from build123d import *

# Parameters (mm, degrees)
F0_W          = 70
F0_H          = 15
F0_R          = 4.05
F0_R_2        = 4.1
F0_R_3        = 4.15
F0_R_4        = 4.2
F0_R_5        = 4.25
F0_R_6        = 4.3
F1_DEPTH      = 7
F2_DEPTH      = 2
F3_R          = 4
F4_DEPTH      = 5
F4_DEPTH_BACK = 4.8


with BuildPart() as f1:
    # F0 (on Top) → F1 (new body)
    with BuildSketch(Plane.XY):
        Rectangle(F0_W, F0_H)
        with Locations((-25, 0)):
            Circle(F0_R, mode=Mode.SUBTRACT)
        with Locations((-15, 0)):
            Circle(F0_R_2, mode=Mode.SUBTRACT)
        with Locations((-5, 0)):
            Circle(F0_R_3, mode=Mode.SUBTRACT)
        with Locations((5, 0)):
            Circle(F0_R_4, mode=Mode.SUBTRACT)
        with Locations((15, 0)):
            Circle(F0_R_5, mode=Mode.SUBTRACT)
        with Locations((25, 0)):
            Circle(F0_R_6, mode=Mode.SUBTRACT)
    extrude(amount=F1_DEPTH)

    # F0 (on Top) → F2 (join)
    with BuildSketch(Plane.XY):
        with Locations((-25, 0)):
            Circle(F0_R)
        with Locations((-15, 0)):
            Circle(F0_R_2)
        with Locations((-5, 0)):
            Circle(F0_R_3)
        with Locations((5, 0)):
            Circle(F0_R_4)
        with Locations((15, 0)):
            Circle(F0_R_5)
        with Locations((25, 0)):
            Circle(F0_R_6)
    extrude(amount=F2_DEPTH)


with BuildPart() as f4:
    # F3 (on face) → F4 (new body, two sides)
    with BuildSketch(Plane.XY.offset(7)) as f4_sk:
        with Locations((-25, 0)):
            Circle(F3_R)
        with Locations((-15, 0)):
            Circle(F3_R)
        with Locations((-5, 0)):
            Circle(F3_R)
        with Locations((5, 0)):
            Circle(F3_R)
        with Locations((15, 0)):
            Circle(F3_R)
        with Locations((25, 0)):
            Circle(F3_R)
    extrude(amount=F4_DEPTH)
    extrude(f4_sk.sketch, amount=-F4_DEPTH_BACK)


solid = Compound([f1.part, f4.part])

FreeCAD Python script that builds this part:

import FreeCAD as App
import Part
import Sketcher

V = App.Vector

doc = App.newDocument("Part")
body = doc.addObject("PartDesign::Body", "Body")

# Sketch on XY plane
sketch1 = body.newObject("Sketcher::SketchObject", "Sketch")
sketch1.AttachmentSupport = (doc.getObject("XY_Plane"), [""])
sketch1.MapMode = "FlatFace"
sketch1.addGeometry([
    Part.LineSegment(V(-35, 7.5, 0), V(-35, -7.5, 0)),  # 0
    Part.LineSegment(V(-35, -7.5, 0), V(35, -7.5, 0)),  # 1
    Part.LineSegment(V(35, -7.5, 0), V(35, 7.5, 0)),  # 2
    Part.LineSegment(V(35, 7.5, 0), V(-35, 7.5, 0)),  # 3
    Part.Circle(V(-25, 0, 0), V(0, 0, 1), 4),  # 4
    Part.Circle(V(-15, 0, 0), V(0, 0, 1), 4.1),  # 5
    Part.Circle(V(-5, 0, 0), V(0, 0, 1), 4.2),  # 6
    Part.Circle(V(5, 0, 0), V(0, 0, 1), 4.2),  # 7
    Part.Circle(V(15, 0, 0), V(0, 0, 1), 4.2),  # 8
    Part.Circle(V(25, 0, 0), V(0, 0, 1), 4.3),  # 9
], False)
sketch1.addConstraint([
    Sketcher.Constraint("Coincident", 0, 2, 1, 1),
    Sketcher.Constraint("Coincident", 1, 2, 2, 1),
    Sketcher.Constraint("Coincident", 2, 2, 3, 1),
    Sketcher.Constraint("Coincident", 3, 2, 0, 1),
    Sketcher.Constraint("Vertical", 0),
    Sketcher.Constraint("Horizontal", 1),
    Sketcher.Constraint("Vertical", 2),
    Sketcher.Constraint("Horizontal", 3),
    Sketcher.Constraint("Symmetric", 6, 3, 7, 3, -1, 1),
    Sketcher.Constraint("Symmetric", 5, 3, 8, 3, -1, 1),
    Sketcher.Constraint("Symmetric", 4, 3, 9, 3, -1, 1),
    Sketcher.Constraint("Symmetric", 0, 2, 2, 2, -1, 1),
    Sketcher.Constraint("PointOnObject", 4, 3, -1),
    Sketcher.Constraint("PointOnObject", 5, 3, -1),
    Sketcher.Constraint("PointOnObject", 6, 3, -1),
    Sketcher.Constraint("Diameter", 4, 8.1),
    Sketcher.Constraint("Diameter", 5, 8.2),
    Sketcher.Constraint("Diameter", 6, 8.3),
    Sketcher.Constraint("Diameter", 7, 8.4),
    Sketcher.Constraint("Diameter", 8, 8.5),
    Sketcher.Constraint("Diameter", 9, 8.6),
    Sketcher.Constraint("DistanceX", 1, 1, 1, 2, 70.0),
    Sketcher.Constraint("DistanceY", 0, 2, 0, 1, 15.0),
    Sketcher.Constraint("DistanceX", 4, 3, -1, 1, 25.0),
    Sketcher.Constraint("DistanceX", 5, 3, -1, 1, 15.0),
    Sketcher.Constraint("DistanceX", 6, 3, -1, 1, 5.0),
])
pad1 = body.newObject("PartDesign::Pad", "Pad")
pad1.Profile = sketch1
pad1.Length = 7

# Sketch on XY plane
sketch2 = body.newObject("Sketcher::SketchObject", "Sketch001")
sketch2.AttachmentSupport = (doc.getObject("XY_Plane"), [""])
sketch2.MapMode = "FlatFace"
sketch2.addGeometry([
    Part.Circle(V(-25, 0, 0), V(0, 0, 1), 4),  # 0
    Part.Circle(V(-15, 0, 0), V(0, 0, 1), 4.1),  # 1
    Part.Circle(V(-5, 0, 0), V(0, 0, 1), 4.2),  # 2
    Part.Circle(V(5, 0, 0), V(0, 0, 1), 4.2),  # 3
    Part.Circle(V(15, 0, 0), V(0, 0, 1), 4.2),  # 4
    Part.Circle(V(25, 0, 0), V(0, 0, 1), 4.3),  # 5
], False)
sketch2.addConstraint([
    Sketcher.Constraint("Symmetric", 2, 3, 3, 3, -1, 1),
    Sketcher.Constraint("Symmetric", 1, 3, 4, 3, -1, 1),
    Sketcher.Constraint("Symmetric", 0, 3, 5, 3, -1, 1),
    Sketcher.Constraint("PointOnObject", 0, 3, -1),
    Sketcher.Constraint("PointOnObject", 1, 3, -1),
    Sketcher.Constraint("PointOnObject", 2, 3, -1),
    Sketcher.Constraint("Diameter", 0, 8.1),
    Sketcher.Constraint("Diameter", 1, 8.2),
    Sketcher.Constraint("Diameter", 2, 8.3),
    Sketcher.Constraint("Diameter", 3, 8.4),
    Sketcher.Constraint("Diameter", 4, 8.5),
    Sketcher.Constraint("Diameter", 5, 8.6),
    Sketcher.Constraint("DistanceX", 0, 3, -1, 1, 25.0),
    Sketcher.Constraint("DistanceX", 1, 3, -1, 1, 15.0),
    Sketcher.Constraint("DistanceX", 2, 3, -1, 1, 5.0),
])
pad2 = body.newObject("PartDesign::Pad", "Pad001")
pad2.Profile = sketch2
pad2.Length = 2
body2 = doc.addObject("PartDesign::Body", "Body001")
body2.AllowCompound = True

# Sketch on XY plane
sketch3 = body2.newObject("Sketcher::SketchObject", "Sketch002")
sketch3.AttachmentSupport = (doc.getObject("XY_Plane001"), [""])
sketch3.MapMode = "FlatFace"
sketch3.AttachmentOffset = App.Placement(V(0, 0, 7), App.Rotation())
sketch3.addGeometry([
    Part.Circle(V(-25, 0, 0), V(0, 0, 1), 4),  # 0
    Part.Circle(V(-15, 0, 0), V(0, 0, 1), 4),  # 1
    Part.Circle(V(-5, 0, 0), V(0, 0, 1), 4),  # 2
    Part.Circle(V(5, 0, 0), V(0, 0, 1), 4),  # 3
    Part.Circle(V(15, 0, 0), V(0, 0, 1), 4),  # 4
    Part.Circle(V(25, 0, 0), V(0, 0, 1), 4),  # 5
], False)
sketch3.addConstraint([
    Sketcher.Constraint("Equal", 0, 1),
    Sketcher.Constraint("Equal", 1, 2),
    Sketcher.Constraint("Equal", 2, 3),
    Sketcher.Constraint("Equal", 3, 4),
    Sketcher.Constraint("Equal", 4, 5),
    Sketcher.Constraint("Symmetric", 2, 3, 3, 3, -1, 1),
    Sketcher.Constraint("Symmetric", 1, 3, 4, 3, -1, 1),
    Sketcher.Constraint("Symmetric", 0, 3, 5, 3, -1, 1),
    Sketcher.Constraint("PointOnObject", 0, 3, -1),
    Sketcher.Constraint("PointOnObject", 1, 3, -1),
    Sketcher.Constraint("PointOnObject", 2, 3, -1),
    Sketcher.Constraint("Diameter", 0, 8.0),
    Sketcher.Constraint("DistanceX", 0, 3, -1, 1, 25.0),
    Sketcher.Constraint("DistanceX", 1, 3, -1, 1, 15.0),
    Sketcher.Constraint("DistanceX", 2, 3, -1, 1, 5.0),
])
pad3 = body2.newObject("PartDesign::Pad", "Pad002")
pad3.Profile = sketch3
pad3.Type = "TwoLengths"
pad3.Length = 5
pad3.Length2 = 4.8

doc.recompute()
